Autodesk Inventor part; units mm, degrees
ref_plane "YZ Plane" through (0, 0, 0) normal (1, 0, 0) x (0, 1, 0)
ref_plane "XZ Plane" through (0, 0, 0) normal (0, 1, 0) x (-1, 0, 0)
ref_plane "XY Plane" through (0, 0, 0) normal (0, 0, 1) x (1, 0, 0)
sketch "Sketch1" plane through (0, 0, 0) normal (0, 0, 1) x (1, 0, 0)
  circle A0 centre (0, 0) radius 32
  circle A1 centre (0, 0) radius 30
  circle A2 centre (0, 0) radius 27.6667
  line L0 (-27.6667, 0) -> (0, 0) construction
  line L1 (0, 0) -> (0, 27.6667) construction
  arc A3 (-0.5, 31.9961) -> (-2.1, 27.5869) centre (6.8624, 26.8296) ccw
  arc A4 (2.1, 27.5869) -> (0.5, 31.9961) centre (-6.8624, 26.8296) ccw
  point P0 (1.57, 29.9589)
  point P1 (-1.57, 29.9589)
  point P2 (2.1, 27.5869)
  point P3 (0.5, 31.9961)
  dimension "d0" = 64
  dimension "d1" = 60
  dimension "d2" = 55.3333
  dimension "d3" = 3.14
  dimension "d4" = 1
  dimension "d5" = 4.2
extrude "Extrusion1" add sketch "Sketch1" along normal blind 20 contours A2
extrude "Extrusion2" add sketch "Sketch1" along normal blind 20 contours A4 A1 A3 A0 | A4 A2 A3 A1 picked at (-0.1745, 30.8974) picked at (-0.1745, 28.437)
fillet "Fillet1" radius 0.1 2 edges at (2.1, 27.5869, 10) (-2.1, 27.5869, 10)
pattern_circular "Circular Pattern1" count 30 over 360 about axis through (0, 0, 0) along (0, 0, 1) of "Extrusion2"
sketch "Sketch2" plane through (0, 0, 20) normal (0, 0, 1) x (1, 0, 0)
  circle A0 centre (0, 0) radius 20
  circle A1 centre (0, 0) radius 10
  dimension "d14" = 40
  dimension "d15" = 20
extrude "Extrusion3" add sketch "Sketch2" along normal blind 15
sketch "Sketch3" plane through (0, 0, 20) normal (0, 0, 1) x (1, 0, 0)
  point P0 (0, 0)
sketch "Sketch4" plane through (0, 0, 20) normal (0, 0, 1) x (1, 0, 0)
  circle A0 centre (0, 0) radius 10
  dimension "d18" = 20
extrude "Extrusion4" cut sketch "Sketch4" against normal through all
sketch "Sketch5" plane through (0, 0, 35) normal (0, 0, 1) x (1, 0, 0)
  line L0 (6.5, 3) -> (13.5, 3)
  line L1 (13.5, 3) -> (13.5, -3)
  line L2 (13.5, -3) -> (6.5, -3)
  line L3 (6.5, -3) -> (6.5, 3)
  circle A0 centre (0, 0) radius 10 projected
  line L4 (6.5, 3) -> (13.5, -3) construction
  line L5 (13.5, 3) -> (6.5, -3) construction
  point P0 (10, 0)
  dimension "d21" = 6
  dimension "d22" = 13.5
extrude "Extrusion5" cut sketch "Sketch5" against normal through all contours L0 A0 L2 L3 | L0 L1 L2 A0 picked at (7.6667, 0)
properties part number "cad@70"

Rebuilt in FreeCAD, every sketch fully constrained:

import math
import FreeCAD as App
import Part
import Sketcher
from FreeCAD import Vector


def edges_at(feature, points):
    """Names of the edges that pass closest to the given points."""
    edges = feature.Shape.Edges
    near = lambda p: min(range(len(edges)), key=lambda i: edges[i].distToShape(Part.Vertex(*p))[0])
    return sorted({f"Edge{near(p) + 1}" for p in points})


def add_polygon(sketch, points):
    """Adds a closed chain of lines whose ends are joined by coincident constraints."""
    first, n = sketch.GeometryCount, len(points)
    for a, b in zip(points, points[1:] + points[:1]):
        sketch.addGeometry(Part.LineSegment(App.Vector(*a, 0), App.Vector(*b, 0)), False)
    for i in range(n):
        sketch.addConstraint(Sketcher.Constraint("Coincident", first + i, 2, first + (i + 1) % n, 1))

doc = App.newDocument("Part")
body = doc.addObject("PartDesign::Body", "Body")

# Sketch on XY plane
sketch1 = body.newObject("Sketcher::SketchObject", "Sketch")
sketch1.AttachmentSupport = (doc.getObject("XY_Plane"), [""])
sketch1.MapMode = "FlatFace"
sketch1.addGeometry(Part.Circle(Vector(0, 0, 0), Vector(0, 0, 1), 27.6667), False)
sketch1.addConstraint(Sketcher.Constraint("Coincident", 0, 3, -1, 1))
sketch1.addConstraint(Sketcher.Constraint("Diameter", 0, 55.3334))
pad1 = body.newObject("PartDesign::Pad", "Pad")
pad1.Profile = sketch1
pad1.Length = 20

# Sketch on XY plane
sketch2 = body.newObject("Sketcher::SketchObject", "Sketch001")
sketch2.AttachmentSupport = (doc.getObject("XY_Plane"), [""])
sketch2.MapMode = "FlatFace"
sketch2.addGeometry(Part.ArcOfCircle(Part.Circle(Vector(0, 0, 0), Vector(0, 0, 1), 32), math.radians(89.104717), math.radians(90.895283)), False)
sketch2.addGeometry(Part.ArcOfCircle(Part.Circle(Vector(6.8624, 26.8296, 0), Vector(0, 0, 1), 8.994312), math.radians(144.941076), math.radians(175.170125)), False)
sketch2.addGeometry(Part.ArcOfCircle(Part.Circle(Vector(0, 0, 0), Vector(0, 0, 1), 27.6667), math.radians(85.646864), math.radians(94.353136)), False)
sketch2.addGeometry(Part.ArcOfCircle(Part.Circle(Vector(-6.8624, 26.8296, 0), Vector(0, 0, 1), 8.994338), math.radians(4.829875), math.radians(35.058924)), False)
sketch2.addConstraint(Sketcher.Constraint("Coincident", 0, 2, 1, 1))
sketch2.addConstraint(Sketcher.Constraint("Coincident", 1, 2, 2, 2))
sketch2.addConstraint(Sketcher.Constraint("Coincident", 2, 1, 3, 1))
sketch2.addConstraint(Sketcher.Constraint("Coincident", 3, 2, 0, 1))
sketch2.addConstraint(Sketcher.Constraint("Coincident", 0, 3, -1, 1))
sketch2.addConstraint(Sketcher.Constraint("Coincident", 2, 3, -1, 1))
sketch2.addConstraint(Sketcher.Constraint("Equal", 1, 3))
sketch2.addConstraint(Sketcher.Constraint("Symmetric", 1, 3, 3, 3, -2))
sketch2.addConstraint(Sketcher.Constraint("Radius", 0, 32.0))
sketch2.addConstraint(Sketcher.Constraint("DistanceX", 0, 2, 3, 2, 1.0))
sketch2.addConstraint(Sketcher.Constraint("Radius", 2, 27.6667))
sketch2.addConstraint(Sketcher.Constraint("DistanceX", 1, 2, 2, 1, 4.2))
sketch2.addConstraint(Sketcher.Constraint("Radius", 1, 8.9943))
pad2 = body.newObject("PartDesign::Pad", "Pad001")
pad2.Profile = sketch2
pad2.Length = 20
doc.recompute()

fillet = body.newObject("PartDesign::Fillet", "Fillet")
fillet.Base = (pad2, edges_at(pad2, [(2.1, 27.587, 10), (-2.1, 27.587, 10)]))
fillet.Radius = 0.1
doc.recompute()

polarpattern = body.newObject("PartDesign::PolarPattern", "PolarPattern")
polarpattern.Originals = [pad2]
polarpattern.Axis = (doc.getObject("Z_Axis"), [""])
polarpattern.Angle = 360
polarpattern.Occurrences = 30
body.Tip = polarpattern

# Sketch on XY plane
sketch3 = body.newObject("Sketcher::SketchObject", "Sketch002")
sketch3.AttachmentSupport = (doc.getObject("XY_Plane"), [""])
sketch3.MapMode = "FlatFace"
sketch3.AttachmentOffset = App.Placement(Vector(0, 0, 20), App.Rotation())
sketch3.addGeometry(Part.Circle(Vector(0, 0, 0), Vector(0, 0, 1), 20), False)
sketch3.addGeometry(Part.Circle(Vector(0, 0, 0), Vector(0, 0, 1), 10), False)
sketch3.addConstraint(Sketcher.Constraint("Coincident", 0, 3, -1, 1))
sketch3.addConstraint(Sketcher.Constraint("Coincident", 1, 3, -1, 1))
sketch3.addConstraint(Sketcher.Constraint("Diameter", 0, 40.0))
sketch3.addConstraint(Sketcher.Constraint("Diameter", 1, 20.0))
pad3 = body.newObject("PartDesign::Pad", "Pad002")
pad3.Profile = sketch3
pad3.Length = 15

# Sketch on XY plane
sketch4 = body.newObject("Sketcher::SketchObject", "Sketch003")
sketch4.AttachmentSupport = (doc.getObject("XY_Plane"), [""])
sketch4.MapMode = "FlatFace"
sketch4.AttachmentOffset = App.Placement(Vector(0, 0, 20), App.Rotation())
sketch4.addGeometry(Part.Circle(Vector(0, 0, 0), Vector(0, 0, 1), 10), False)
sketch4.addConstraint(Sketcher.Constraint("Coincident", 0, 3, -1, 1))
sketch4.addConstraint(Sketcher.Constraint("Diameter", 0, 20.0))
pocket1 = body.newObject("PartDesign::Pocket", "Pocket")
pocket1.Profile = sketch4
pocket1.Type = "ThroughAll"

# Sketch on XY plane
sketch5 = body.newObject("Sketcher::SketchObject", "Sketch004")
sketch5.AttachmentSupport = (doc.getObject("XY_Plane"), [""])
sketch5.MapMode = "FlatFace"
sketch5.AttachmentOffset = App.Placement(Vector(0, 0, 35), App.Rotation())
add_polygon(sketch5, [(6.5, 3), (6.5, -3), (13.5, -3), (13.5, 3)])  # lines 0-3
sketch5.addConstraint(Sketcher.Constraint("Vertical", 0))
sketch5.addConstraint(Sketcher.Constraint("Horizontal", 1))
sketch5.addConstraint(Sketcher.Constraint("Vertical", 2))
sketch5.addConstraint(Sketcher.Constraint("Horizontal", 3))
sketch5.addConstraint(Sketcher.Constraint("DistanceY", 0, 2, 0, 1, 6.0))
sketch5.addConstraint(Sketcher.Constraint("DistanceX", -1, 1, 1, 2, 13.5))
sketch5.addConstraint(Sketcher.Constraint("DistanceX", 1, 1, 1, 2, 7.0))
sketch5.addConstraint(Sketcher.Constraint("DistanceY", 0, 2, -1, 1, 3.0))
pocket2 = body.newObject("PartDesign::Pocket", "Pocket001")
pocket2.Profile = sketch5
pocket2.Type = "ThroughAll"

doc.recompute()
